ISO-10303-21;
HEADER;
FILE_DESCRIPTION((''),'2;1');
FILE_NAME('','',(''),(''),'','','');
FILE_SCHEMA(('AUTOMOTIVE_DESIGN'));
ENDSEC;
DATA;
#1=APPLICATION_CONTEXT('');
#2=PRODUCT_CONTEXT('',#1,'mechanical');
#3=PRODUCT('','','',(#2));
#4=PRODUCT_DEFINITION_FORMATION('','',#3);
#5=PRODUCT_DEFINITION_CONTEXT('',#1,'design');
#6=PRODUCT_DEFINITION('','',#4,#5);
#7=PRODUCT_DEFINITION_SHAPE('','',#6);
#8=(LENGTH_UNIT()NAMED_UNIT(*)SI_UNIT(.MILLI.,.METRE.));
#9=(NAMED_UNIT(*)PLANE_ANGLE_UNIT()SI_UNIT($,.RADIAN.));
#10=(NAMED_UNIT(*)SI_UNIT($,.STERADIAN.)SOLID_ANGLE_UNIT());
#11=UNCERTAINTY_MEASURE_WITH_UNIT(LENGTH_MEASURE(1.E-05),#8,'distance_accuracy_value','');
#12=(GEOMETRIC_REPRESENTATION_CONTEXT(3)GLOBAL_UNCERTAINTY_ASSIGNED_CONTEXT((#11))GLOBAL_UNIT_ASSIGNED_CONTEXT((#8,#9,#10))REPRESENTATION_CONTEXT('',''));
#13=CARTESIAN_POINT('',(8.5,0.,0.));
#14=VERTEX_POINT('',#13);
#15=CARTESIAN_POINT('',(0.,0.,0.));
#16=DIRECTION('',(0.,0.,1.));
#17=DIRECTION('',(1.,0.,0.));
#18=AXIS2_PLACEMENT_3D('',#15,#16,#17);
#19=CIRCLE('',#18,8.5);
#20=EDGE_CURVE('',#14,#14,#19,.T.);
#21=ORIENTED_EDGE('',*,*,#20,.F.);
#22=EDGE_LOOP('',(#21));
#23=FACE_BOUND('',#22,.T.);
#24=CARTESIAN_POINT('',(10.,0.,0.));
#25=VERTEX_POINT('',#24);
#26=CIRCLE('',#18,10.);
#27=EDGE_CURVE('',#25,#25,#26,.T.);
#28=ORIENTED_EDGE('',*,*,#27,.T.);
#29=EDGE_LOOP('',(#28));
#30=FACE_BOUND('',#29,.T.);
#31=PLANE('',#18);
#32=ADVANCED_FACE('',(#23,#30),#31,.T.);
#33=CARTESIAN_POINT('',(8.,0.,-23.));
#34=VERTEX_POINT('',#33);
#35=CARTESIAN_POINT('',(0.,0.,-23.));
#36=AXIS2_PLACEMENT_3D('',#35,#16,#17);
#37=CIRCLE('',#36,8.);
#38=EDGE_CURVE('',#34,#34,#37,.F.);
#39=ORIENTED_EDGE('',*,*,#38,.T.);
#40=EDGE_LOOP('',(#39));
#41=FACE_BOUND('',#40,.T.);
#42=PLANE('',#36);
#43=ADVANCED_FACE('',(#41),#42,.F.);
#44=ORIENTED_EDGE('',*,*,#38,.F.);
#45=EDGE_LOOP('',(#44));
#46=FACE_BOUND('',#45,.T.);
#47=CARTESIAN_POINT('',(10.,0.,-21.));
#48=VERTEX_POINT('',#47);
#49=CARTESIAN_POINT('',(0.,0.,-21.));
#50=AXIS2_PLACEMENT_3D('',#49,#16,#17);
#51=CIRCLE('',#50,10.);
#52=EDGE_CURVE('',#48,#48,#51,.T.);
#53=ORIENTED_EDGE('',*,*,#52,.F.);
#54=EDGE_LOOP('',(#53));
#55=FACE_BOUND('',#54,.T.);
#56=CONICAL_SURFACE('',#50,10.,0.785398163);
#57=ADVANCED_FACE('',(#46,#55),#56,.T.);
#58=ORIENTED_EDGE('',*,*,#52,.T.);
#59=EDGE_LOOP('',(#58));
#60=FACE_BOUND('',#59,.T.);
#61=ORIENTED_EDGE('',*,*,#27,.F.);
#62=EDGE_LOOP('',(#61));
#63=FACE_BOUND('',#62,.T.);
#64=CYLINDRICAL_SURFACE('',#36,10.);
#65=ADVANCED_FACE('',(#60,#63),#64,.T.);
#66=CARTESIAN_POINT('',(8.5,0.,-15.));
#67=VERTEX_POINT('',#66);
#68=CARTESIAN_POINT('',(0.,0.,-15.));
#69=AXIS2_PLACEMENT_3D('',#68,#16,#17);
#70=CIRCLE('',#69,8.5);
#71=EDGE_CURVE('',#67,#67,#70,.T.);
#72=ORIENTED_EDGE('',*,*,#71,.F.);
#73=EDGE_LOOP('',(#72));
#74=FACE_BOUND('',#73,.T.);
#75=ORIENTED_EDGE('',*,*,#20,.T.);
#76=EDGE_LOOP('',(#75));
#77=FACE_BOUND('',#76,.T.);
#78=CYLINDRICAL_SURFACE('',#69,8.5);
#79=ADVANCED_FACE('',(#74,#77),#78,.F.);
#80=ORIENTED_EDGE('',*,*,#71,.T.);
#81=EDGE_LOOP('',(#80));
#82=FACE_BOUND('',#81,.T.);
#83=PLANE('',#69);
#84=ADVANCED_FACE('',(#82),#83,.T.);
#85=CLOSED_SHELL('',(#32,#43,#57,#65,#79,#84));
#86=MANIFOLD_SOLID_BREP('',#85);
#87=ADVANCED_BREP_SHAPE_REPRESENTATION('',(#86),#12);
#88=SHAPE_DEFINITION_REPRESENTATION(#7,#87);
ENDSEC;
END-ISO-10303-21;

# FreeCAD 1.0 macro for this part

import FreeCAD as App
import Part
import Sketcher
Q = App.Units.Quantity


def edges_at(feature, points):
    """Names of the edges that pass closest to the given points."""
    edges = feature.Shape.Edges
    near = lambda p: min(range(len(edges)), key=lambda i: edges[i].distToShape(Part.Vertex(*p))[0])
    return sorted({f"Edge{near(p) + 1}" for p in points})

doc = App.newDocument("Part")
body = doc.addObject("PartDesign::Body", "Body")

# Sketch on XY plane
sketch1 = doc.addObject("Sketcher::SketchObject", "Sketch")
body.addObject(sketch1)
sketch1.AttachmentSupport = (doc.XY_Plane, [""])
sketch1.MapMode = "FlatFace"
sketch1.addGeometry(Part.Circle(App.Vector(0, 0, 0), App.Vector(0, 0, 1), 10), False)
sketch1.addConstraint([
    Sketcher.Constraint("Coincident", 0, 3, -1, 1),
    Sketcher.Constraint("Diameter", 0, Q("20 mm")),
])
pad1 = doc.addObject("PartDesign::Pad", "Pad")
body.addObject(pad1)
pad1.Profile = sketch1
pad1.Length = 23
pad1.Reversed = True
doc.recompute()

chamfer = doc.addObject("PartDesign::Chamfer", "Chamfer")
body.addObject(chamfer)
chamfer.Base = (pad1, edges_at(pad1, [(-10, 0, -23)]))
chamfer.Size = 2

# Sketch on XY plane
sketch2 = doc.addObject("Sketcher::SketchObject", "Sketch001")
body.addObject(sketch2)
sketch2.AttachmentSupport = (doc.XY_Plane, [""])
sketch2.MapMode = "FlatFace"
sketch2.addGeometry(Part.Circle(App.Vector(0, 0, 0), App.Vector(0, 0, 1), 8), False)
sketch2.addConstraint([
    Sketcher.Constraint("Coincident", 0, 3, -1, 1),
    Sketcher.Constraint("Diameter", 0, Q("17 mm")),
])
pocket1 = doc.addObject("PartDesign::Pocket", "Pocket")
body.addObject(pocket1)
pocket1.Profile = sketch2
pocket1.Length = 15

doc.recompute()
